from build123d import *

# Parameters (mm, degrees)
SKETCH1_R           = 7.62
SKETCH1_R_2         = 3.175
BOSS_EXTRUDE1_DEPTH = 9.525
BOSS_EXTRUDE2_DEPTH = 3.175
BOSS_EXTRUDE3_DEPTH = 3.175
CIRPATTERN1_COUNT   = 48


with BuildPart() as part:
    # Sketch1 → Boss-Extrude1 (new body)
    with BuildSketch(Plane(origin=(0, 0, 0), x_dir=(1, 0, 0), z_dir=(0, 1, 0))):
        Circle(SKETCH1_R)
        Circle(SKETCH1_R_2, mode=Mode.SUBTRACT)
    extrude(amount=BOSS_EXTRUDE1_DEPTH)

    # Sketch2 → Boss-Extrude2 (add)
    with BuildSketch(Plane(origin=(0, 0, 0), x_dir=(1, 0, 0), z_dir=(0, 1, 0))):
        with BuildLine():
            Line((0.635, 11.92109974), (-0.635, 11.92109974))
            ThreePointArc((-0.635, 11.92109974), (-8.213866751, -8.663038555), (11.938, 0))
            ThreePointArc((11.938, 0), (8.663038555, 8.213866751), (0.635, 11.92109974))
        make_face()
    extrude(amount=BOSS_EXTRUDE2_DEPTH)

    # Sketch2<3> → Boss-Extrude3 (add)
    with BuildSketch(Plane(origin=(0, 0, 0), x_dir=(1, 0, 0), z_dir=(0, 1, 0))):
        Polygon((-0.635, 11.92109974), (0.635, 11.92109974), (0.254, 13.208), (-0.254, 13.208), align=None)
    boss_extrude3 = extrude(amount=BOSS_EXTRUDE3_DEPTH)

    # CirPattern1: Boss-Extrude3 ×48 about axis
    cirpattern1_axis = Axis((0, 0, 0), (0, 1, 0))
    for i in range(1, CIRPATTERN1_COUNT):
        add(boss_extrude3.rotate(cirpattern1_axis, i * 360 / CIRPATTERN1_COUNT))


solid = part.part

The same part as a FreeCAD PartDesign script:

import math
import FreeCAD as App
import Part
import Sketcher
from FreeCAD import Vector
Q = App.Units.Quantity

doc = App.newDocument("Part")
body = doc.addObject("PartDesign::Body", "Body")

# Sketch on XZ plane
sketch1 = body.newObject("Sketcher::SketchObject", "Sketch")
sketch1.AttachmentSupport = (doc.getObject("XZ_Plane"), [""])
sketch1.MapMode = "FlatFace"
sketch1.addGeometry([
    Part.Circle(Vector(0, 0, 0), Vector(0, 0, 1), 7.6),
    Part.Circle(Vector(0, 0, 0), Vector(0, 0, 1), 3.2),
], False)
sketch1.addConstraint([
    Sketcher.Constraint("Coincident", 0, 3, -1, 1),
    Sketcher.Constraint("Coincident", 1, 3, -1, 1),
    Sketcher.Constraint("Diameter", 0, Q("0.6 in")),
    Sketcher.Constraint("Diameter", 1, Q("0.25 in")),
])
pad1 = body.newObject("PartDesign::Pad", "Pad")
pad1.Profile = sketch1
pad1.Length = Q("0.375 in")
pad1.Reversed = True

# Sketch on XZ plane
sketch2 = body.newObject("Sketcher::SketchObject", "Sketch001")
sketch2.AttachmentSupport = (doc.getObject("XZ_Plane"), [""])
sketch2.MapMode = "FlatFace"
sketch2.addGeometry([
    Part.LineSegment(Vector(0.6, -11.9, 0), Vector(-0.6, -11.9, 0)),
    Part.ArcOfCircle(Part.Circle(Vector(0, 0, 0), Vector(0, 0, 1), 11.9), math.radians(0), math.radians(267)),
    Part.ArcOfCircle(Part.Circle(Vector(0, 0, 0), Vector(0, 0, 1), 11.9), math.radians(-87), math.radians(0)),
], False)
sketch2.addConstraint([
    Sketcher.Constraint("Coincident", 0, 2, 1, 2),
    Sketcher.Constraint("Tangent", 1, 1, 2, 2),
    Sketcher.Constraint("Coincident", 2, 1, 0, 1),
    Sketcher.Constraint("Horizontal", 0),
    Sketcher.Constraint("Coincident", 1, 3, -1, 1),
    Sketcher.Constraint("Equal", 1, 2),
    Sketcher.Constraint("PointOnObject", 1, 1, -1),
    Sketcher.Constraint("Radius", 1, Q("0.47 in")),
    Sketcher.Constraint("DistanceX", 0, 2, 0, 1, Q("0.05 in")),
])
pad2 = body.newObject("PartDesign::Pad", "Pad001")
pad2.Profile = sketch2
pad2.Length = Q("0.125 in")
pad2.Reversed = True

# Sketch on XZ plane
sketch3 = body.newObject("Sketcher::SketchObject", "Sketch002")
sketch3.AttachmentSupport = (doc.getObject("XZ_Plane"), [""])
sketch3.MapMode = "FlatFace"
sketch3.addGeometry([
    Part.LineSegment(Vector(-0.6, -11.9, 0), Vector(0.6, -11.9, 0)),
    Part.LineSegment(Vector(0.6, -11.9, 0), Vector(0.3, -13.2, 0)),
    Part.LineSegment(Vector(0.3, -13.2, 0), Vector(-0.3, -13.2, 0)),
    Part.LineSegment(Vector(-0.3, -13.2, 0), Vector(-0.6, -11.9, 0)),
], False)
sketch3.addConstraint([
    Sketcher.Constraint("Coincident", 0, 2, 1, 1),
    Sketcher.Constraint("Coincident", 1, 2, 2, 1),
    Sketcher.Constraint("Coincident", 2, 2, 3, 1),
    Sketcher.Constraint("Coincident", 3, 2, 0, 1),
    Sketcher.Constraint("Horizontal", 0),
    Sketcher.Constraint("Horizontal", 2),
    Sketcher.Constraint("Equal", 1, 3),
    Sketcher.Constraint("DistanceX", 0, 1, 0, 2, Q("0.05 in")),
    Sketcher.Constraint("DistanceX", 2, 2, 2, 1, Q("0.02 in")),
    Sketcher.Constraint("DistanceX", -1, 1, 1, 2, Q("0.01 in")),
    Sketcher.Constraint("DistanceY", 1, 2, -1, 1, Q("0.52 in")),
    Sketcher.Constraint("DistanceY", 0, 2, -1, 1, 11.9211),
])
pad3 = body.newObject("PartDesign::Pad", "Pad002")
pad3.Profile = sketch3
pad3.Length = Q("0.125 in")
pad3.Reversed = True
doc.recompute()

polarpattern = body.newObject("PartDesign::PolarPattern", "PolarPattern")
polarpattern.Originals = [pad3]
polarpattern.Axis = (doc.getObject("Y_Axis"), [""])
polarpattern.Angle = 360
polarpattern.Occurrences = 48
body.Tip = polarpattern

doc.recompute()
